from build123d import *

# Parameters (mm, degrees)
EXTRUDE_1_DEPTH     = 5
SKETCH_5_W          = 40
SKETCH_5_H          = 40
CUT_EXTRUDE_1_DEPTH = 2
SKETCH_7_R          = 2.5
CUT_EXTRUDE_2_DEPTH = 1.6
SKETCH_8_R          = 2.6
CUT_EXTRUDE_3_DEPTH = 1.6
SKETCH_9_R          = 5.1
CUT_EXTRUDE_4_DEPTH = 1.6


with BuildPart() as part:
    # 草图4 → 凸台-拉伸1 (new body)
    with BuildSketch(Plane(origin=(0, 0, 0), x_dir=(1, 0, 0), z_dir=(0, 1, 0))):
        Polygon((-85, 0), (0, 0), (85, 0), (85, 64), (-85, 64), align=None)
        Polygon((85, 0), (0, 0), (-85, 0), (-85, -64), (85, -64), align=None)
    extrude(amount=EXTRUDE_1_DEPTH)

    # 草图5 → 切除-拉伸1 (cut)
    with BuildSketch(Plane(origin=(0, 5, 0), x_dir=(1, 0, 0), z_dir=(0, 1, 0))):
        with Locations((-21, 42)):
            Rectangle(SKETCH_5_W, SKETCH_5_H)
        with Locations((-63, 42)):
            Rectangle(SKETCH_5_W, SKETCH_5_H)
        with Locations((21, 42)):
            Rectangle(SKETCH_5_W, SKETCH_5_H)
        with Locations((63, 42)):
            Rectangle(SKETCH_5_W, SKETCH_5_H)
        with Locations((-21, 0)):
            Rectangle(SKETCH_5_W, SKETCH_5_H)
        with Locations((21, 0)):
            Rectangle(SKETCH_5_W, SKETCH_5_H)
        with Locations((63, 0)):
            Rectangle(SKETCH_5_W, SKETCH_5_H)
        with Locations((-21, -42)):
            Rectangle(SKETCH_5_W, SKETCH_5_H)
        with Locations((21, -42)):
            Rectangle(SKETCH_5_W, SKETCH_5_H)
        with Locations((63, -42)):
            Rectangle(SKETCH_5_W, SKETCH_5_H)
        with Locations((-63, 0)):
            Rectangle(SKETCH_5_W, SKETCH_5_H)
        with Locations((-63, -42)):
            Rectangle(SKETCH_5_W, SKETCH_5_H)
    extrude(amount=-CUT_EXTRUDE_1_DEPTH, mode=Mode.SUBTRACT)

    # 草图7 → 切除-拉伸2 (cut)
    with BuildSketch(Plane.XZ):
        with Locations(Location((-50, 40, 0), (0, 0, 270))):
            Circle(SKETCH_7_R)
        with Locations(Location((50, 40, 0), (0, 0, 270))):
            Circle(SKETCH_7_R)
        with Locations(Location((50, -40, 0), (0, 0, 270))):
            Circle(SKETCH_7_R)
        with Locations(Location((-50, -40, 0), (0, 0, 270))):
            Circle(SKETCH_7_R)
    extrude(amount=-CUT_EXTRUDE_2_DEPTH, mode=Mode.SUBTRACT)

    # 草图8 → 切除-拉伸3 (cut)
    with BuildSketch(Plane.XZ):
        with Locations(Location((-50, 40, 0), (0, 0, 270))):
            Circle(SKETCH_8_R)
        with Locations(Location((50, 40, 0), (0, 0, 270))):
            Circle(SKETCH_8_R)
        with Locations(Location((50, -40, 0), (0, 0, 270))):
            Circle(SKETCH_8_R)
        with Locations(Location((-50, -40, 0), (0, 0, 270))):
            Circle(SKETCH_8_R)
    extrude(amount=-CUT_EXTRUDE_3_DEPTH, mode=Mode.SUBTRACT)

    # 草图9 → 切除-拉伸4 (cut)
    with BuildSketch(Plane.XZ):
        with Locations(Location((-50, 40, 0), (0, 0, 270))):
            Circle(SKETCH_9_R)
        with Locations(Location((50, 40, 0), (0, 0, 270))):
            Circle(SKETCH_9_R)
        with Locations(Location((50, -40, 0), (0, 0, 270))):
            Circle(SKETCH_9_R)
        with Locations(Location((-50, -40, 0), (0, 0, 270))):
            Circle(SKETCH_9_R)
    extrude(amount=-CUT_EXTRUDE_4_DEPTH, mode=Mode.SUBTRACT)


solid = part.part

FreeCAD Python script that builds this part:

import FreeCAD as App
import Part
import Sketcher

doc = App.newDocument("Part")
params = doc.addObject("Spreadsheet::Sheet", "Params")
for row, (alias, value) in enumerate([
    ("sketch1_width", "170 mm"),
    ("sketch1_height", "128 mm"),
    ("pad1_length", "5 mm"),
    ("sketch2_width", "40 mm"),
    ("pocket1_length", "2 mm"),
    ("sketch3_diameter", "5 mm"),
    ("pocket2_length", "1.6 mm"),
    ("sketch4_diameter", "5.2 mm"),
    ("pocket3_length", "1.6 mm"),
    ("sketch5_diameter", "10.2 mm"),
    ("pocket4_length", "1.6 mm"),
], start=1):
    params.set(f"A{row}", alias)
    params.set(f"B{row}", "=" + value)
    params.setAlias(f"B{row}", alias)

body = doc.addObject("PartDesign::Body", "Body")

# Sketch on XZ plane
sketch1 = body.newObject("Sketcher::SketchObject", "Sketch")
sketch1.AttachmentSupport = (doc.getObject("XZ_Plane"), [""])
sketch1.MapMode = "FlatFace"
sketch1.addGeometry(Part.LineSegment(App.Vector(85, -64, 0), App.Vector(-85, -64, 0)), False)
sketch1.addGeometry(Part.LineSegment(App.Vector(-85, -64, 0), App.Vector(-85, 64, 0)), False)
sketch1.addGeometry(Part.LineSegment(App.Vector(-85, 64, 0), App.Vector(85, 64, 0)), False)
sketch1.addGeometry(Part.LineSegment(App.Vector(85, 64, 0), App.Vector(85, -64, 0)), False)
sketch1.addConstraint(Sketcher.Constraint("Coincident", 0, 2, 1, 1))
sketch1.addConstraint(Sketcher.Constraint("Coincident", 1, 2, 2, 1))
sketch1.addConstraint(Sketcher.Constraint("Coincident", 2, 2, 3, 1))
sketch1.addConstraint(Sketcher.Constraint("Coincident", 3, 2, 0, 1))
sketch1.addConstraint(Sketcher.Constraint("Horizontal", 0))
sketch1.addConstraint(Sketcher.Constraint("Vertical", 1))
sketch1.addConstraint(Sketcher.Constraint("Horizontal", 2))
sketch1.addConstraint(Sketcher.Constraint("Vertical", 3))
sketch1.addConstraint(Sketcher.Constraint("Symmetric", 0, 2, 2, 2, -1, 1))
sketch1.addConstraint(Sketcher.Constraint("DistanceX", 0, 2, 0, 1, 170.0))
sketch1.addConstraint(Sketcher.Constraint("DistanceY", 1, 1, 1, 2, 128.0))
sketch1.setExpression("Constraints[9]", "Params.sketch1_width")
sketch1.setExpression("Constraints[10]", "Params.sketch1_height")
pad1 = body.newObject("PartDesign::Pad", "Pad")
pad1.Profile = sketch1
pad1.setExpression("Length", "Params.pad1_length")
pad1.Reversed = True

# Sketch on XZ plane
sketch2 = body.newObject("Sketcher::SketchObject", "Sketch001")
sketch2.AttachmentSupport = (doc.getObject("XZ_Plane"), [""])
sketch2.MapMode = "FlatFace"
sketch2.AttachmentOffset = App.Placement(App.Vector(0, 0, -5), App.Rotation())
sketch2.addGeometry(Part.LineSegment(App.Vector(-41, -62, 0), App.Vector(-41, -22, 0)), False)
sketch2.addGeometry(Part.LineSegment(App.Vector(-41, -22, 0), App.Vector(-1, -22, 0)), False)
sketch2.addGeometry(Part.LineSegment(App.Vector(-1, -22, 0), App.Vector(-1, -62, 0)), False)
sketch2.addGeometry(Part.LineSegment(App.Vector(-1, -62, 0), App.Vector(-41, -62, 0)), False)
sketch2.addGeometry(Part.LineSegment(App.Vector(-83, -62, 0), App.Vector(-83, -22, 0)), False)
sketch2.addGeometry(Part.LineSegment(App.Vector(-83, -22, 0), App.Vector(-43, -22, 0)), False)
sketch2.addGeometry(Part.LineSegment(App.Vector(-43, -22, 0), App.Vector(-43, -62, 0)), False)
sketch2.addGeometry(Part.LineSegment(App.Vector(-43, -62, 0), App.Vector(-83, -62, 0)), False)
sketch2.addGeometry(Part.LineSegment(App.Vector(1, -62, 0), App.Vector(1, -22, 0)), False)
sketch2.addGeometry(Part.LineSegment(App.Vector(1, -22, 0), App.Vector(41, -22, 0)), False)
sketch2.addGeometry(Part.LineSegment(App.Vector(41, -22, 0), App.Vector(41, -62, 0)), False)
sketch2.addGeometry(Part.LineSegment(App.Vector(41, -62, 0), App.Vector(1, -62, 0)), False)
sketch2.addGeometry(Part.LineSegment(App.Vector(43, -62, 0), App.Vector(43, -22, 0)), False)
sketch2.addGeometry(Part.LineSegment(App.Vector(43, -22, 0), App.Vector(83, -22, 0)), False)
sketch2.addGeometry(Part.LineSegment(App.Vector(83, -22, 0), App.Vector(83, -62, 0)), False)
sketch2.addGeometry(Part.LineSegment(App.Vector(83, -62, 0), App.Vector(43, -62, 0)), False)
sketch2.addGeometry(Part.LineSegment(App.Vector(-41, -20, 0), App.Vector(-41, 20, 0)), False)
sketch2.addGeometry(Part.LineSegment(App.Vector(-41, 20, 0), App.Vector(-1, 20, 0)), False)
sketch2.addGeometry(Part.LineSegment(App.Vector(-1, 20, 0), App.Vector(-1, -20, 0)), False)
sketch2.addGeometry(Part.LineSegment(App.Vector(-1, -20, 0), App.Vector(-41, -20, 0)), False)
sketch2.addGeometry(Part.LineSegment(App.Vector(1, -20, 0), App.Vector(1, 20, 0)), False)
sketch2.addGeometry(Part.LineSegment(App.Vector(1, 20, 0), App.Vector(41, 20, 0)), False)
sketch2.addGeometry(Part.LineSegment(App.Vector(41, 20, 0), App.Vector(41, -20, 0)), False)
sketch2.addGeometry(Part.LineSegment(App.Vector(41, -20, 0), App.Vector(1, -20, 0)), False)
sketch2.addGeometry(Part.LineSegment(App.Vector(43, -20, 0), App.Vector(43, 20, 0)), False)
sketch2.addGeometry(Part.LineSegment(App.Vector(43, 20, 0), App.Vector(83, 20, 0)), False)
sketch2.addGeometry(Part.LineSegment(App.Vector(83, 20, 0), App.Vector(83, -20, 0)), False)
sketch2.addGeometry(Part.LineSegment(App.Vector(83, -20, 0), App.Vector(43, -20, 0)), False)
sketch2.addGeometry(Part.LineSegment(App.Vector(-41, 22, 0), App.Vector(-41, 62, 0)), False)
sketch2.addGeometry(Part.LineSegment(App.Vector(-41, 62, 0), App.Vector(-1, 62, 0)), False)
sketch2.addGeometry(Part.LineSegment(App.Vector(-1, 62, 0), App.Vector(-1, 22, 0)), False)
sketch2.addGeometry(Part.LineSegment(App.Vector(-1, 22, 0), App.Vector(-41, 22, 0)), False)
sketch2.addGeometry(Part.LineSegment(App.Vector(1, 22, 0), App.Vector(1, 62, 0)), False)
sketch2.addGeometry(Part.LineSegment(App.Vector(1, 62, 0), App.Vector(41, 62, 0)), False)
sketch2.addGeometry(Part.LineSegment(App.Vector(41, 62, 0), App.Vector(41, 22, 0)), False)
sketch2.addGeometry(Part.LineSegment(App.Vector(41, 22, 0), App.Vector(1, 22, 0)), False)
sketch2.addGeometry(Part.LineSegment(App.Vector(43, 22, 0), App.Vector(43, 62, 0)), False)
sketch2.addGeometry(Part.LineSegment(App.Vector(43, 62, 0), App.Vector(83, 62, 0)), False)
sketch2.addGeometry(Part.LineSegment(App.Vector(83, 62, 0), App.Vector(83, 22, 0)), False)
sketch2.addGeometry(Part.LineSegment(App.Vector(83, 22, 0), App.Vector(43, 22, 0)), False)
sketch2.addGeometry(Part.LineSegment(App.Vector(-83, -20, 0), App.Vector(-83, 20, 0)), False)
sketch2.addGeometry(Part.LineSegment(App.Vector(-83, 20, 0), App.Vector(-43, 20, 0)), False)
sketch2.addGeometry(Part.LineSegment(App.Vector(-43, 20, 0), App.Vector(-43, -20, 0)), False)
sketch2.addGeometry(Part.LineSegment(App.Vector(-43, -20, 0), App.Vector(-83, -20, 0)), False)
sketch2.addGeometry(Part.LineSegment(App.Vector(-83, 22, 0), App.Vector(-83, 62, 0)), False)
sketch2.addGeometry(Part.LineSegment(App.Vector(-83, 62, 0), App.Vector(-43, 62, 0)), False)
sketch2.addGeometry(Part.LineSegment(App.Vector(-43, 62, 0), App.Vector(-43, 22, 0)), False)
sketch2.addGeometry(Part.LineSegment(App.Vector(-43, 22, 0), App.Vector(-83, 22, 0)), False)
sketch2.addConstraint(Sketcher.Constraint("Coincident", 0, 2, 1, 1))
sketch2.addConstraint(Sketcher.Constraint("Coincident", 1, 2, 2, 1))
sketch2.addConstraint(Sketcher.Constraint("Coincident", 2, 2, 3, 1))
sketch2.addConstraint(Sketcher.Constraint("Coincident", 3, 2, 0, 1))
sketch2.addConstraint(Sketcher.Constraint("Coincident", 4, 2, 5, 1))
sketch2.addConstraint(Sketcher.Constraint("Coincident", 5, 2, 6, 1))
sketch2.addConstraint(Sketcher.Constraint("Coincident", 6, 2, 7, 1))
sketch2.addConstraint(Sketcher.Constraint("Coincident", 7, 2, 4, 1))
sketch2.addConstraint(Sketcher.Constraint("Coincident", 8, 2, 9, 1))
sketch2.addConstraint(Sketcher.Constraint("Coincident", 9, 2, 10, 1))
sketch2.addConstraint(Sketcher.Constraint("Coincident", 10, 2, 11, 1))
sketch2.addConstraint(Sketcher.Constraint("Coincident", 11, 2, 8, 1))
sketch2.addConstraint(Sketcher.Constraint("Coincident", 12, 2, 13, 1))
sketch2.addConstraint(Sketcher.Constraint("Coincident", 13, 2, 14, 1))
sketch2.addConstraint(Sketcher.Constraint("Coincident", 14, 2, 15, 1))
sketch2.addConstraint(Sketcher.Constraint("Coincident", 15, 2, 12, 1))
sketch2.addConstraint(Sketcher.Constraint("Coincident", 16, 2, 17, 1))
sketch2.addConstraint(Sketcher.Constraint("Coincident", 17, 2, 18, 1))
sketch2.addConstraint(Sketcher.Constraint("Coincident", 18, 2, 19, 1))
sketch2.addConstraint(Sketcher.Constraint("Coincident", 19, 2, 16, 1))
sketch2.addConstraint(Sketcher.Constraint("Coincident", 20, 2, 21, 1))
sketch2.addConstraint(Sketcher.Constraint("Coincident", 21, 2, 22, 1))
sketch2.addConstraint(Sketcher.Constraint("Coincident", 22, 2, 23, 1))
sketch2.addConstraint(Sketcher.Constraint("Coincident", 23, 2, 20, 1))
sketch2.addConstraint(Sketcher.Constraint("Coincident", 24, 2, 25, 1))
sketch2.addConstraint(Sketcher.Constraint("Coincident", 25, 2, 26, 1))
sketch2.addConstraint(Sketcher.Constraint("Coincident", 26, 2, 27, 1))
sketch2.addConstraint(Sketcher.Constraint("Coincident", 27, 2, 24, 1))
sketch2.addConstraint(Sketcher.Constraint("Coincident", 28, 2, 29, 1))
sketch2.addConstraint(Sketcher.Constraint("Coincident", 29, 2, 30, 1))
sketch2.addConstraint(Sketcher.Constraint("Coincident", 30, 2, 31, 1))
sketch2.addConstraint(Sketcher.Constraint("Coincident", 31, 2, 28, 1))
sketch2.addConstraint(Sketcher.Constraint("Coincident", 32, 2, 33, 1))
sketch2.addConstraint(Sketcher.Constraint("Coincident", 33, 2, 34, 1))
sketch2.addConstraint(Sketcher.Constraint("Coincident", 34, 2, 35, 1))
sketch2.addConstraint(Sketcher.Constraint("Coincident", 35, 2, 32, 1))
sketch2.addConstraint(Sketcher.Constraint("Coincident", 36, 2, 37, 1))
sketch2.addConstraint(Sketcher.Constraint("Coincident", 37, 2, 38, 1))
sketch2.addConstraint(Sketcher.Constraint("Coincident", 38, 2, 39, 1))
sketch2.addConstraint(Sketcher.Constraint("Coincident", 39, 2, 36, 1))
sketch2.addConstraint(Sketcher.Constraint("Coincident", 40, 2, 41, 1))
sketch2.addConstraint(Sketcher.Constraint("Coincident", 41, 2, 42, 1))
sketch2.addConstraint(Sketcher.Constraint("Coincident", 42, 2, 43, 1))
sketch2.addConstraint(Sketcher.Constraint("Coincident", 43, 2, 40, 1))
sketch2.addConstraint(Sketcher.Constraint("Coincident", 44, 2, 45, 1))
sketch2.addConstraint(Sketcher.Constraint("Coincident", 45, 2, 46, 1))
sketch2.addConstraint(Sketcher.Constraint("Coincident", 46, 2, 47, 1))
sketch2.addConstraint(Sketcher.Constraint("Coincident", 47, 2, 44, 1))
sketch2.addConstraint(Sketcher.Constraint("Vertical", 0))
sketch2.addConstraint(Sketcher.Constraint("Horizontal", 1))
sketch2.addConstraint(Sketcher.Constraint("Vertical", 2))
sketch2.addConstraint(Sketcher.Constraint("Horizontal", 3))
sketch2.addConstraint(Sketcher.Constraint("Vertical", 4))
sketch2.addConstraint(Sketcher.Constraint("Horizontal", 5))
sketch2.addConstraint(Sketcher.Constraint("Vertical", 6))
sketch2.addConstraint(Sketcher.Constraint("Horizontal", 7))
sketch2.addConstraint(Sketcher.Constraint("Vertical", 8))
sketch2.addConstraint(Sketcher.Constraint("Horizontal", 9))
sketch2.addConstraint(Sketcher.Constraint("Vertical", 10))
sketch2.addConstraint(Sketcher.Constraint("Horizontal", 11))
sketch2.addConstraint(Sketcher.Constraint("Vertical", 12))
sketch2.addConstraint(Sketcher.Constraint("Horizontal", 13))
sketch2.addConstraint(Sketcher.Constraint("Vertical", 14))
sketch2.addConstraint(Sketcher.Constraint("Horizontal", 15))
sketch2.addConstraint(Sketcher.Constraint("Vertical", 16))
sketch2.addConstraint(Sketcher.Constraint("Horizontal", 17))
sketch2.addConstraint(Sketcher.Constraint("Vertical", 18))
sketch2.addConstraint(Sketcher.Constraint("Horizontal", 19))
sketch2.addConstraint(Sketcher.Constraint("Vertical", 20))
sketch2.addConstraint(Sketcher.Constraint("Horizontal", 21))
sketch2.addConstraint(Sketcher.Constraint("Vertical", 22))
sketch2.addConstraint(Sketcher.Constraint("Horizontal", 23))
sketch2.addConstraint(Sketcher.Constraint("Vertical", 24))
sketch2.addConstraint(Sketcher.Constraint("Horizontal", 25))
sketch2.addConstraint(Sketcher.Constraint("Vertical", 26))
sketch2.addConstraint(Sketcher.Constraint("Horizontal", 27))
sketch2.addConstraint(Sketcher.Constraint("Vertical", 28))
sketch2.addConstraint(Sketcher.Constraint("Horizontal", 29))
sketch2.addConstraint(Sketcher.Constraint("Vertical", 30))
sketch2.addConstraint(Sketcher.Constraint("Horizontal", 31))
sketch2.addConstraint(Sketcher.Constraint("Vertical", 32))
sketch2.addConstraint(Sketcher.Constraint("Horizontal", 33))
sketch2.addConstraint(Sketcher.Constraint("Vertical", 34))
sketch2.addConstraint(Sketcher.Constraint("Horizontal", 35))
sketch2.addConstraint(Sketcher.Constraint("Vertical", 36))
sketch2.addConstraint(Sketcher.Constraint("Horizontal", 37))
sketch2.addConstraint(Sketcher.Constraint("Vertical", 38))
sketch2.addConstraint(Sketcher.Constraint("Horizontal", 39))
sketch2.addConstraint(Sketcher.Constraint("Vertical", 40))
sketch2.addConstraint(Sketcher.Constraint("Horizontal", 41))
sketch2.addConstraint(Sketcher.Constraint("Vertical", 42))
sketch2.addConstraint(Sketcher.Constraint("Horizontal", 43))
sketch2.addConstraint(Sketcher.Constraint("Vertical", 44))
sketch2.addConstraint(Sketcher.Constraint("Horizontal", 45))
sketch2.addConstraint(Sketcher.Constraint("Vertical", 46))
sketch2.addConstraint(Sketcher.Constraint("Horizontal", 47))
sketch2.addConstraint(Sketcher.Constraint("Symmetric", 18, 2, 20, 2, -1, 1))
sketch2.addConstraint(Sketcher.Constraint("Symmetric", 16, 2, 22, 2, -1, 1))
sketch2.addConstraint(Sketcher.Constraint("Symmetric", 10, 2, 28, 2, -1, 1))
sketch2.addConstraint(Sketcher.Constraint("Symmetric", 8, 2, 30, 2, -1, 1))
sketch2.addConstraint(Sketcher.Constraint("Symmetric", 2, 2, 32, 2, -1, 1))
sketch2.addConstraint(Sketcher.Constraint("Symmetric", 0, 2, 34, 2, -1, 1))
sketch2.addConstraint(Sketcher.Constraint("Symmetric", 6, 2, 36, 2, -1, 1))
sketch2.addConstraint(Sketcher.Constraint("Symmetric", 4, 2, 38, 2, -1, 1))
sketch2.addConstraint(Sketcher.Constraint("Symmetric", 26, 2, 40, 2, -1, 1))
sketch2.addConstraint(Sketcher.Constraint("Symmetric", 24, 2, 42, 2, -1, 1))
sketch2.addConstraint(Sketcher.Constraint("Symmetric", 14, 2, 44, 2, -1, 1))
sketch2.addConstraint(Sketcher.Constraint("Symmetric", 12, 2, 46, 2, -1, 1))
sketch2.addConstraint(Sketcher.Constraint("Symmetric", 1, 2, 8, 2, -2))
sketch2.addConstraint(Sketcher.Constraint("Symmetric", 3, 2, 10, 2, -2))
sketch2.addConstraint(Sketcher.Constraint("Symmetric", 5, 2, 12, 2, -2))
sketch2.addConstraint(Sketcher.Constraint("Symmetric", 7, 2, 14, 2, -2))
sketch2.addConstraint(Sketcher.Constraint("Horizontal", 1, 2, 4, 2))
sketch2.addConstraint(Sketcher.Constraint("Horizontal", 3, 2, 6, 2))
sketch2.addConstraint(Sketcher.Constraint("Horizontal", 17, 2, 20, 2))
sketch2.addConstraint(Sketcher.Constraint("Horizontal", 21, 2, 24, 2))
sketch2.addConstraint(Sketcher.Constraint("Horizontal", 23, 2, 26, 2))
sketch2.addConstraint(Sketcher.Constraint("Vertical", 3, 2, 16, 2))
sketch2.addConstraint(Sketcher.Constraint("Vertical", 2, 2, 17, 2))
sketch2.addConstraint(Sketcher.Constraint("Vertical", 15, 2, 24, 2))
sketch2.addConstraint(Sketcher.Constraint("Vertical", 14, 2, 25, 2))
sketch2.addConstraint(Sketcher.Constraint("Equal", 3, 5))
sketch2.addConstraint(Sketcher.Constraint("Equal", 47, 0))
sketch2.addConstraint(Sketcher.Constraint("Equal", 14, 16))
sketch2.addConstraint(Sketcher.Constraint("DistanceX", 1, 1, 1, 2, 40.0))
sketch2.addConstraint(Sketcher.Constraint("DistanceX", 0, 2, -1, 1, 41.0))
sketch2.addConstraint(Sketcher.Constraint("DistanceY", 0, 2, -1, 1, 22.0))
sketch2.addConstraint(Sketcher.Constraint("DistanceX", 4, 2, -1, 1, 83.0))
sketch2.setExpression("Constraints[124]", "Params.sketch2_width")
pocket1 = body.newObject("PartDesign::Pocket", "Pocket")
pocket1.Profile = sketch2
pocket1.setExpression("Length", "Params.pocket1_length")
pocket1.Reversed = True

# Sketch on XZ plane
sketch3 = body.newObject("Sketcher::SketchObject", "Sketch002")
sketch3.AttachmentSupport = (doc.getObject("XZ_Plane"), [""])
sketch3.MapMode = "FlatFace"
sketch3.addGeometry(Part.Circle(App.Vector(-50, 40, 0), App.Vector(0, 0, 1), 2.5), False)
sketch3.addGeometry(Part.Circle(App.Vector(50, 40, 0), App.Vector(0, 0, 1), 2.5), False)
sketch3.addGeometry(Part.Circle(App.Vector(50, -40, 0), App.Vector(0, 0, 1), 2.5), False)
sketch3.addGeometry(Part.Circle(App.Vector(-50, -40, 0), App.Vector(0, 0, 1), 2.5), False)
sketch3.addConstraint(Sketcher.Constraint("Equal", 0, 1))
sketch3.addConstraint(Sketcher.Constraint("Equal", 1, 2))
sketch3.addConstraint(Sketcher.Constraint("Equal", 2, 3))
sketch3.addConstraint(Sketcher.Constraint("Symmetric", 0, 3, 2, 3, -1, 1))
sketch3.addConstraint(Sketcher.Constraint("Symmetric", 1, 3, 3, 3, -1, 1))
sketch3.addConstraint(Sketcher.Constraint("Symmetric", 0, 3, 1, 3, -2))
sketch3.addConstraint(Sketcher.Constraint("Diameter", 0, 5.0))
sketch3.addConstraint(Sketcher.Constraint("DistanceX", 0, 3, -1, 1, 50.0))
sketch3.addConstraint(Sketcher.Constraint("DistanceY", -1, 1, 0, 3, 40.0))
sketch3.setExpression("Constraints[6]", "Params.sketch3_diameter")
pocket2 = body.newObject("PartDesign::Pocket", "Pocket001")
pocket2.Profile = sketch3
pocket2.setExpression("Length", "Params.pocket2_length")

# Sketch on XZ plane
sketch4 = body.newObject("Sketcher::SketchObject", "Sketch003")
sketch4.AttachmentSupport = (doc.getObject("XZ_Plane"), [""])
sketch4.MapMode = "FlatFace"
sketch4.addGeometry(Part.Circle(App.Vector(-50, 40, 0), App.Vector(0, 0, 1), 2.6), False)
sketch4.addGeometry(Part.Circle(App.Vector(50, 40, 0), App.Vector(0, 0, 1), 2.6), False)
sketch4.addGeometry(Part.Circle(App.Vector(50, -40, 0), App.Vector(0, 0, 1), 2.6), False)
sketch4.addGeometry(Part.Circle(App.Vector(-50, -40, 0), App.Vector(0, 0, 1), 2.6), False)
sketch4.addConstraint(Sketcher.Constraint("Equal", 0, 1))
sketch4.addConstraint(Sketcher.Constraint("Equal", 1, 2))
sketch4.addConstraint(Sketcher.Constraint("Equal", 2, 3))
sketch4.addConstraint(Sketcher.Constraint("Symmetric", 0, 3, 2, 3, -1, 1))
sketch4.addConstraint(Sketcher.Constraint("Symmetric", 1, 3, 3, 3, -1, 1))
sketch4.addConstraint(Sketcher.Constraint("Symmetric", 0, 3, 1, 3, -2))
sketch4.addConstraint(Sketcher.Constraint("Diameter", 0, 5.2))
sketch4.addConstraint(Sketcher.Constraint("DistanceX", 0, 3, -1, 1, 50.0))
sketch4.addConstraint(Sketcher.Constraint("DistanceY", -1, 1, 0, 3, 40.0))
sketch4.setExpression("Constraints[6]", "Params.sketch4_diameter")
pocket3 = body.newObject("PartDesign::Pocket", "Pocket002")
pocket3.Profile = sketch4
pocket3.setExpression("Length", "Params.pocket3_length")

# Sketch on XZ plane
sketch5 = body.newObject("Sketcher::SketchObject", "Sketch004")
sketch5.AttachmentSupport = (doc.getObject("XZ_Plane"), [""])
sketch5.MapMode = "FlatFace"
sketch5.addGeometry(Part.Circle(App.Vector(-50, 40, 0), App.Vector(0, 0, 1), 5), False)
sketch5.addGeometry(Part.Circle(App.Vector(50, 40, 0), App.Vector(0, 0, 1), 5), False)
sketch5.addGeometry(Part.Circle(App.Vector(50, -40, 0), App.Vector(0, 0, 1), 5), False)
sketch5.addGeometry(Part.Circle(App.Vector(-50, -40, 0), App.Vector(0, 0, 1), 5), False)
sketch5.addConstraint(Sketcher.Constraint("Equal", 0, 1))
sketch5.addConstraint(Sketcher.Constraint("Equal", 1, 2))
sketch5.addConstraint(Sketcher.Constraint("Equal", 2, 3))
sketch5.addConstraint(Sketcher.Constraint("Symmetric", 0, 3, 2, 3, -1, 1))
sketch5.addConstraint(Sketcher.Constraint("Symmetric", 1, 3, 3, 3, -1, 1))
sketch5.addConstraint(Sketcher.Constraint("Symmetric", 0, 3, 1, 3, -2))
sketch5.addConstraint(Sketcher.Constraint("Diameter", 0, 10.2))
sketch5.addConstraint(Sketcher.Constraint("DistanceX", 0, 3, -1, 1, 50.0))
sketch5.addConstraint(Sketcher.Constraint("DistanceY", -1, 1, 0, 3, 40.0))
sketch5.setExpression("Constraints[6]", "Params.sketch5_diameter")
pocket4 = body.newObject("PartDesign::Pocket", "Pocket003")
pocket4.Profile = sketch5
pocket4.setExpression("Length", "Params.pocket4_length")

doc.recompute()
